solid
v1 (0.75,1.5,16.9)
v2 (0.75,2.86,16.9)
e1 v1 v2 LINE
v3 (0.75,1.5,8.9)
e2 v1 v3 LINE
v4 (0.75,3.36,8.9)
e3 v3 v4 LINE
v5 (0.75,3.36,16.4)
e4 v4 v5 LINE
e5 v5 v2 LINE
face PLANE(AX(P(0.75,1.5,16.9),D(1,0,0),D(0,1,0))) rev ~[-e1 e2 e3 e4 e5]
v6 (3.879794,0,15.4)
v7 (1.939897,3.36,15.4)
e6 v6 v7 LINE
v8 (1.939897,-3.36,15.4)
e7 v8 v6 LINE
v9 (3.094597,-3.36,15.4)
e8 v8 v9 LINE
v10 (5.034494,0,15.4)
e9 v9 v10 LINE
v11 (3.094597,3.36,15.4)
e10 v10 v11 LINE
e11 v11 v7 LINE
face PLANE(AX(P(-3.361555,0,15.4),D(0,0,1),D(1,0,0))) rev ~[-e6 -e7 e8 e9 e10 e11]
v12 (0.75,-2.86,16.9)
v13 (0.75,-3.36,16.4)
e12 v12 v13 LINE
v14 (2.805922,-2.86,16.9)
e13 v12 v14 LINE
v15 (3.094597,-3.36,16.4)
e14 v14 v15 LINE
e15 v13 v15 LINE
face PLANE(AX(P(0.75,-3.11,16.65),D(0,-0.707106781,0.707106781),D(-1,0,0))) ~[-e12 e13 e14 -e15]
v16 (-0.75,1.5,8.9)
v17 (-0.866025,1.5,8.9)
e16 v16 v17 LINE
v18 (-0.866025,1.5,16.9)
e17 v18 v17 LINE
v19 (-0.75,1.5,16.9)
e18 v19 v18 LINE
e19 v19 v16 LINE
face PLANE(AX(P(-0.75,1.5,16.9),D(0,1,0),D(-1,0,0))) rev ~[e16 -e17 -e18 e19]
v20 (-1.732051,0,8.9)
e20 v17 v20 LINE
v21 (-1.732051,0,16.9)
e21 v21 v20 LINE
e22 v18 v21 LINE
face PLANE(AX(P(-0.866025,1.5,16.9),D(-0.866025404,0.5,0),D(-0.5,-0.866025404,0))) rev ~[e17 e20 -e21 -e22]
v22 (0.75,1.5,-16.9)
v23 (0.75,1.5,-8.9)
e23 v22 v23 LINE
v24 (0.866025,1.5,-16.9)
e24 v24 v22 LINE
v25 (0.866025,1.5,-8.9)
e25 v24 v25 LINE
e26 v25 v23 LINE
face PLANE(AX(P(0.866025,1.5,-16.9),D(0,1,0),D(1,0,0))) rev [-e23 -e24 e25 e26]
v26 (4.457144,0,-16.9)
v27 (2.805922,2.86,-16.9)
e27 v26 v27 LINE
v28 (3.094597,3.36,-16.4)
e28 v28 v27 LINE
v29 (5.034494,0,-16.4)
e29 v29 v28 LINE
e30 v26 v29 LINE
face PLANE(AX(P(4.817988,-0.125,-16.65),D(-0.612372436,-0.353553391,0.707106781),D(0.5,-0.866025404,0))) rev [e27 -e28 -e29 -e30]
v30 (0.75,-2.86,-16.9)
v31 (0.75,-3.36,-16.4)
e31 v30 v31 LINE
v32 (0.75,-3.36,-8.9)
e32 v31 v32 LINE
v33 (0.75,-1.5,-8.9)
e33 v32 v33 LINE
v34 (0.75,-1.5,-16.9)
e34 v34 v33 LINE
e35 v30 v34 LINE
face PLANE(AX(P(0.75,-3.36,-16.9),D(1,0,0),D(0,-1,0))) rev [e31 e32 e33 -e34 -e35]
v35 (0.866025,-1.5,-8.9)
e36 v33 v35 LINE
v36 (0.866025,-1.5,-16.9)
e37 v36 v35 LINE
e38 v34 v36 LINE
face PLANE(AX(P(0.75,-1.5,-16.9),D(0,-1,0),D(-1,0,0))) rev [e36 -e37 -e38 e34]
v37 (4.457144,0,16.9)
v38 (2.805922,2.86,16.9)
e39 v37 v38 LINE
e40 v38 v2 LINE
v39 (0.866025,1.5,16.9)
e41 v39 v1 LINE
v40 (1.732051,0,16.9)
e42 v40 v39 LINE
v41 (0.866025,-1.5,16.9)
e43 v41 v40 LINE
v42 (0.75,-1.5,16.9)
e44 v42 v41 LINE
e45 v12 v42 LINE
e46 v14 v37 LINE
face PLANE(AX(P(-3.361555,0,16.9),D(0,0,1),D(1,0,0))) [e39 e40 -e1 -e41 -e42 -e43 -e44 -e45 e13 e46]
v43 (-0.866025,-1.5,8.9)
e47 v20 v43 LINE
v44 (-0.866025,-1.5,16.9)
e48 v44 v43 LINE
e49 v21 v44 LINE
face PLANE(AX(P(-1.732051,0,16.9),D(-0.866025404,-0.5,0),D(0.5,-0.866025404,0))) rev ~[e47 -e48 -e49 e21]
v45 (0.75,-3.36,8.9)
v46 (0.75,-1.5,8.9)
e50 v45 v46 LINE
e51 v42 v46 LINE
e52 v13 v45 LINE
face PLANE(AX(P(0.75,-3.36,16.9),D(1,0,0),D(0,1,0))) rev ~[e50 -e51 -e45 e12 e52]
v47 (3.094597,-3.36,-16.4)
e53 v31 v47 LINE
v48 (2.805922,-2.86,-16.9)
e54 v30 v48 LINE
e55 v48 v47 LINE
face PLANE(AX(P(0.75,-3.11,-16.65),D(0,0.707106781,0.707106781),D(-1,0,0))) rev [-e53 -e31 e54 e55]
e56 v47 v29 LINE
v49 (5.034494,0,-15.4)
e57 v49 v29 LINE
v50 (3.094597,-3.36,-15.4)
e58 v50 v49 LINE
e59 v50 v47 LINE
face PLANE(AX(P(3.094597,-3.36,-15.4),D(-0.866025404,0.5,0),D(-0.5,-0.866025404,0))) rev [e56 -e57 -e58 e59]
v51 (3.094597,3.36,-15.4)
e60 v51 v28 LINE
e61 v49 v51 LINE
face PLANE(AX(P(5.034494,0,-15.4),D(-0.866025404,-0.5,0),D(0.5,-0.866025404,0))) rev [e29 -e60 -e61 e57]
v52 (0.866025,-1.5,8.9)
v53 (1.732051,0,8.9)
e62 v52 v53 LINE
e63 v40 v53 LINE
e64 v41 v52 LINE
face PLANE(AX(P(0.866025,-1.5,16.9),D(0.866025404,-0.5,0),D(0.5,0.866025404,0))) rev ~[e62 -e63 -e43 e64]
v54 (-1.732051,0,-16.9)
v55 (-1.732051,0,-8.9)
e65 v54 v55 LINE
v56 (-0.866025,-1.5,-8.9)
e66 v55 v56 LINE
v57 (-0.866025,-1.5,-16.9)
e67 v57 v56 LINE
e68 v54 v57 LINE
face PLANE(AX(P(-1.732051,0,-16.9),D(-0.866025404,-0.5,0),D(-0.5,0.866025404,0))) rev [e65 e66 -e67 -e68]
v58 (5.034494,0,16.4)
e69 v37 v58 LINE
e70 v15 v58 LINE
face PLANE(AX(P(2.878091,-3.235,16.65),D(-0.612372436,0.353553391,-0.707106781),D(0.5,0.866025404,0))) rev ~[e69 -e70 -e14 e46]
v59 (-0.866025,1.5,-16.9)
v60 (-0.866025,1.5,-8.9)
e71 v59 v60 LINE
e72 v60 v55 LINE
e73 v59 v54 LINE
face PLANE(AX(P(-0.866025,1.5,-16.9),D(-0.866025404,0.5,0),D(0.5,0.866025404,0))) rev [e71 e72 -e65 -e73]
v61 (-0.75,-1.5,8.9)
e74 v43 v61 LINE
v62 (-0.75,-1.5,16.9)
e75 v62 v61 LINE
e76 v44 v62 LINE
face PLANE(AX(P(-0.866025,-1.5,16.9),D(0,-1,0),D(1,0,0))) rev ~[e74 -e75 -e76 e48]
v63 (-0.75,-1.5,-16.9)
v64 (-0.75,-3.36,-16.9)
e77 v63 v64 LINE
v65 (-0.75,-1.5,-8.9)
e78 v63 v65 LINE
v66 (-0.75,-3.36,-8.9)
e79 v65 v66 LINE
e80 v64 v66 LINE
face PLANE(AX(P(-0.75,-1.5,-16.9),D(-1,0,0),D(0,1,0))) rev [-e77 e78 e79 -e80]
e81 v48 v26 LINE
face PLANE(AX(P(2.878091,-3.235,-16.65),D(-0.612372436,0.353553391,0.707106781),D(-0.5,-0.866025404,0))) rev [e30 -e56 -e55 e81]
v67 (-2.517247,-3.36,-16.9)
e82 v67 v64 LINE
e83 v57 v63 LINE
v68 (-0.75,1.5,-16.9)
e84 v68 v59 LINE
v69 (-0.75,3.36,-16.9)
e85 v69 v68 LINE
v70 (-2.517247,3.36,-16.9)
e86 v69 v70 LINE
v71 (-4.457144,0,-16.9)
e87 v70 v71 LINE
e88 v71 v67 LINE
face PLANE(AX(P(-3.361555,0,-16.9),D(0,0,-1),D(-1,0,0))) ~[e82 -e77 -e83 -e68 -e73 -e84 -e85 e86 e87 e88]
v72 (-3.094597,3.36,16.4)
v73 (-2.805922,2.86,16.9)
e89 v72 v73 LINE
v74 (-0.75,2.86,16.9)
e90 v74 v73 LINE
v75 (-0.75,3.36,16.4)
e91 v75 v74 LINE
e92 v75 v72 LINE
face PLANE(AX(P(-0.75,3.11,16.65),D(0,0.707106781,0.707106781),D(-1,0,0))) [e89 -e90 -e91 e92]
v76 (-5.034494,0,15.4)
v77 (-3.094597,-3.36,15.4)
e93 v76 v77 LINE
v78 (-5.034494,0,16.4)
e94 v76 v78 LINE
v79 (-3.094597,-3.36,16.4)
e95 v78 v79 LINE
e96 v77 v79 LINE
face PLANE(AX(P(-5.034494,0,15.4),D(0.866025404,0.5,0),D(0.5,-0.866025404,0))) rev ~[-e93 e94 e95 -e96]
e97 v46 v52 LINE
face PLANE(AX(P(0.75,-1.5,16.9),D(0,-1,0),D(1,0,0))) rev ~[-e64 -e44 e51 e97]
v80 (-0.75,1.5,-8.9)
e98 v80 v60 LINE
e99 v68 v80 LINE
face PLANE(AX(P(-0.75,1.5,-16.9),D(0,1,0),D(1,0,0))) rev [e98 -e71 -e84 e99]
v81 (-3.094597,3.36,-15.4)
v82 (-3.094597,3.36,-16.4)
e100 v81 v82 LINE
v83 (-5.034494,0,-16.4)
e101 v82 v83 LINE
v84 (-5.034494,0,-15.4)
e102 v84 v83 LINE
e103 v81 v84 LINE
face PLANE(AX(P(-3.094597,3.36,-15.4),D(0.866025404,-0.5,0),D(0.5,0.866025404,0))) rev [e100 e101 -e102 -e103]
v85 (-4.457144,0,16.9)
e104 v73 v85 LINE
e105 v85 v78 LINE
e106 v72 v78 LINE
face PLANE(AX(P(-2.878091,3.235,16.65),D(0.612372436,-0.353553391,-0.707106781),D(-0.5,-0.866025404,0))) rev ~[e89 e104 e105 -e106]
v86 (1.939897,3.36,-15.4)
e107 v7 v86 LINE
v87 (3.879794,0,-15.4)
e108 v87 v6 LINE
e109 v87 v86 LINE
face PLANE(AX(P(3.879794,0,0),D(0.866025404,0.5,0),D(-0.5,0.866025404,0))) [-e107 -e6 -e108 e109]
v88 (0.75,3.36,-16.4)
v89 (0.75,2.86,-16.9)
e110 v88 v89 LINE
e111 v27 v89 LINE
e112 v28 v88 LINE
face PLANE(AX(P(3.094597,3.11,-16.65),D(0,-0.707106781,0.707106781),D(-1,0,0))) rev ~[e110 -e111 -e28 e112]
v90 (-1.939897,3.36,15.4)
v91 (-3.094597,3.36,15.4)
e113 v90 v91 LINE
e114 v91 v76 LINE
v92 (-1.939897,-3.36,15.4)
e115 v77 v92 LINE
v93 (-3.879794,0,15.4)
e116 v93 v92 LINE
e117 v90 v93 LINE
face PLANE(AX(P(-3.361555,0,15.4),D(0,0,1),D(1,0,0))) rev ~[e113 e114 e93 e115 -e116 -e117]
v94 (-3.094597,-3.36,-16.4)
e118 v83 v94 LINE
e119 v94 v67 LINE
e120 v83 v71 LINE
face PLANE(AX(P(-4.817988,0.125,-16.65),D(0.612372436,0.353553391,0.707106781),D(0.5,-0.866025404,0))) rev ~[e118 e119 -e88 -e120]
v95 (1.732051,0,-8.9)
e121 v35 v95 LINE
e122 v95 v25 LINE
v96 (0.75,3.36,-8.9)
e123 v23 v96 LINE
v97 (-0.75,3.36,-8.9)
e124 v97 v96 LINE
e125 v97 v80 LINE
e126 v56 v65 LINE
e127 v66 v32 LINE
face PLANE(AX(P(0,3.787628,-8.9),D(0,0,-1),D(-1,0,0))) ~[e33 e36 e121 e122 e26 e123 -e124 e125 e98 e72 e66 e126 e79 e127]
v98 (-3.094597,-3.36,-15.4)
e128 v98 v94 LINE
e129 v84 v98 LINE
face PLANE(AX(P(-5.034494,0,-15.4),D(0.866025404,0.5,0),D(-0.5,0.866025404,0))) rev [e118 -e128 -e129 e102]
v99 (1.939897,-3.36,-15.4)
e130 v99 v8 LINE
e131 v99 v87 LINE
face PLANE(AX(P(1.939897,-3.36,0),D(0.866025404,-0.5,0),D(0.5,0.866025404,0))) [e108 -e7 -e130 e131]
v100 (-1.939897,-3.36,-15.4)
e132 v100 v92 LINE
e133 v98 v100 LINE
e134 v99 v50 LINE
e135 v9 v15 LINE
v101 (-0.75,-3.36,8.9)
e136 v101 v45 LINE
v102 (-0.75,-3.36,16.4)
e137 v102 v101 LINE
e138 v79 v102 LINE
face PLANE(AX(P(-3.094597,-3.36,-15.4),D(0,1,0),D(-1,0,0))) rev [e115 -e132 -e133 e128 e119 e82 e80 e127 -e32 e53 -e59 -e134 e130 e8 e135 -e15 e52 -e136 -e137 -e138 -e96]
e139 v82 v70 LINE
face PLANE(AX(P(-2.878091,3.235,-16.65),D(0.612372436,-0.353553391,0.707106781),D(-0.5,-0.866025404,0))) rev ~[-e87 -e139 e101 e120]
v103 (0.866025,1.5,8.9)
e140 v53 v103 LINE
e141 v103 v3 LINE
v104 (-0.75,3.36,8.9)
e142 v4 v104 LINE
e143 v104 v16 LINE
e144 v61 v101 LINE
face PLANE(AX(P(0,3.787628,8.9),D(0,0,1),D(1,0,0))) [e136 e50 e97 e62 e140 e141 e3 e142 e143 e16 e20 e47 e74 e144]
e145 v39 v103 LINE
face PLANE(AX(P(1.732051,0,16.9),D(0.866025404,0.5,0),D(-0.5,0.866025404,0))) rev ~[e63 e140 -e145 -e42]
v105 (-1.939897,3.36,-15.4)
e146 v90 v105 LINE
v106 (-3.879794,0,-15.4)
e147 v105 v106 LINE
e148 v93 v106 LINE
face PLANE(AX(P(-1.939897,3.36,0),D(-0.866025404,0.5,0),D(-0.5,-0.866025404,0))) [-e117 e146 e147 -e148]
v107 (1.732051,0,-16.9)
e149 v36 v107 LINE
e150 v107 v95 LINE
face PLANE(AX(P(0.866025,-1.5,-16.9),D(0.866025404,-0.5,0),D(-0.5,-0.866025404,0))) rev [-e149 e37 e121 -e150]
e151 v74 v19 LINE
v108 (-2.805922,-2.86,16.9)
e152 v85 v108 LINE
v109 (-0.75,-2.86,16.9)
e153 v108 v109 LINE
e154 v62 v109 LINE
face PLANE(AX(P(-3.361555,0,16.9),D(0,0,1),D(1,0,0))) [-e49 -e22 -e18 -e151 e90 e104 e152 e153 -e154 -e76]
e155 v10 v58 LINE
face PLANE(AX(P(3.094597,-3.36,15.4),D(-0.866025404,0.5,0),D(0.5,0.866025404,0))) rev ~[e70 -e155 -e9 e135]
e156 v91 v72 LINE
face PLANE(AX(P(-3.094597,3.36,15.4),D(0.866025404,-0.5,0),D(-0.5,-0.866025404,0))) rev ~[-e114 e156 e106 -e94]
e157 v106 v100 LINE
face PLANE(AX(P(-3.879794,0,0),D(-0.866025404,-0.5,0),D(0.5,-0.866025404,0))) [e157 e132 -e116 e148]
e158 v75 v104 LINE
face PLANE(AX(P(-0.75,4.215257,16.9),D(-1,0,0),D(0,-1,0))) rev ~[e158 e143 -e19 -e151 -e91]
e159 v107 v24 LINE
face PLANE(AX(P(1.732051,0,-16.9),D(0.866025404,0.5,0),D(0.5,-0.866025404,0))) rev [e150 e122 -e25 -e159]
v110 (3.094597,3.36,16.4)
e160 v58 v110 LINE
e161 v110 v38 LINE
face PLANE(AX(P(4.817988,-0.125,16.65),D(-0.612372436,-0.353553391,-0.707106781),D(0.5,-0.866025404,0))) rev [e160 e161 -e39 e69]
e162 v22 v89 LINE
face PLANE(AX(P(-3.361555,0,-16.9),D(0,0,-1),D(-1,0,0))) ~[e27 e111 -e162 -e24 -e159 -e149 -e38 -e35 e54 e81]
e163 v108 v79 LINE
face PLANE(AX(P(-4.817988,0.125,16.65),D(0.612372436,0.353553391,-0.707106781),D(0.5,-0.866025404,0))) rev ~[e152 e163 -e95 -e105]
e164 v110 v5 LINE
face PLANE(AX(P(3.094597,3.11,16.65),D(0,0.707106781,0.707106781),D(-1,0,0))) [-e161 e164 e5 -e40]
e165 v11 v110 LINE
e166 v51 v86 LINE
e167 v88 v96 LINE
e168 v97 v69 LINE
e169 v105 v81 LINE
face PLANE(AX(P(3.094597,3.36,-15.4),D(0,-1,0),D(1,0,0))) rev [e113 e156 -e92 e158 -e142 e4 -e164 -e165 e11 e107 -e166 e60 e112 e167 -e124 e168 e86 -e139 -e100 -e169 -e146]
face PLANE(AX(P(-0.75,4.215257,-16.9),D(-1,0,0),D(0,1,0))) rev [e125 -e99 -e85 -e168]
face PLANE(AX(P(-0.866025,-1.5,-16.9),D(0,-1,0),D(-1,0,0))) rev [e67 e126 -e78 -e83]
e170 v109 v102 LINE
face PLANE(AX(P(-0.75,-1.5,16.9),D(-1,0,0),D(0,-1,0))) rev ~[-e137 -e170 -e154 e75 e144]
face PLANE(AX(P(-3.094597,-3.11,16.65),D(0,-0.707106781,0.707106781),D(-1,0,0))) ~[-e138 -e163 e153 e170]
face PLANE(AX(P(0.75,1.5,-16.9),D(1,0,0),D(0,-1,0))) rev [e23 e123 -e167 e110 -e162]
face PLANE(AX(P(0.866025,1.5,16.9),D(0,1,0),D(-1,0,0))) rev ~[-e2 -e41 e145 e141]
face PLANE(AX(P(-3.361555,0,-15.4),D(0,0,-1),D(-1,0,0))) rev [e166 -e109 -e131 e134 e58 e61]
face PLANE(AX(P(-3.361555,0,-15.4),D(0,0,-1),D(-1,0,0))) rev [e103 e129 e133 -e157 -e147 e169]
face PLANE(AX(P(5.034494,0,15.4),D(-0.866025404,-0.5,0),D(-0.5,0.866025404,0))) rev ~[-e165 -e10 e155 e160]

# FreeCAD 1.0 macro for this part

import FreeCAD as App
import Part
import Sketcher
from FreeCAD import Vector
Q = App.Units.Quantity


def edges_at(feature, points):
    """Names of the edges that pass closest to the given points."""
    edges = feature.Shape.Edges
    near = lambda p: min(range(len(edges)), key=lambda i: edges[i].distToShape(Part.Vertex(*p))[0])
    return sorted({f"Edge{near(p) + 1}" for p in points})

doc = App.newDocument("Part")
body = doc.addObject("PartDesign::Body", "Body")

sketch1 = body.newObject("Sketcher::SketchObject", "Sketch")
sketch1.AttachmentSupport = (doc.getObject("XY_Plane"), [""])
sketch1.MapMode = "FlatFace"
sketch1.addGeometry([
    Part.LineSegment(Vector(-3.9, 0, 0), Vector(-1.9, -3.4, 0)),
    Part.LineSegment(Vector(-1.9, -3.4, 0), Vector(1.9, -3.4, 0)),
    Part.LineSegment(Vector(1.9, -3.4, 0), Vector(3.9, 0, 0)),
    Part.LineSegment(Vector(3.9, 0, 0), Vector(1.9, 3.4, 0)),
    Part.LineSegment(Vector(1.9, 3.4, 0), Vector(-1.9, 3.4, 0)),
    Part.LineSegment(Vector(-1.9, 3.4, 0), Vector(-3.9, 0, 0)),
], False)
sketch1.addConstraint([
    Sketcher.Constraint("Coincident", 0, 2, 1, 1),
    Sketcher.Constraint("Coincident", 1, 2, 2, 1),
    Sketcher.Constraint("Coincident", 2, 2, 3, 1),
    Sketcher.Constraint("Coincident", 3, 2, 4, 1),
    Sketcher.Constraint("Coincident", 4, 2, 5, 1),
    Sketcher.Constraint("Coincident", 5, 2, 0, 1),
    Sketcher.Constraint("Horizontal", 1),
    Sketcher.Constraint("Horizontal", 4),
    Sketcher.Constraint("Symmetric", 0, 2, 3, 2, -1, 1),
    Sketcher.Constraint("Symmetric", 2, 2, 5, 2, -1, 1),
    Sketcher.Constraint("PointOnObject", 2, 2, -1),
    Sketcher.Constraint("Parallel", 2, 5),
    Sketcher.Constraint("Vertical", 1, 2, 3, 2),
    Sketcher.Constraint("Angle", 0, Q("-60 deg")),
    Sketcher.Constraint("DistanceY", 0, 2, -1, 1, Q("3.36 mm")),
    Sketcher.Constraint("DistanceX", 1, 1, 1, 2, Q("3.879794 mm")),
])
pad1 = body.newObject("PartDesign::Pad", "Pad")
pad1.Profile = sketch1
pad1.Length = 30.8
pad1.Midplane = True

sketch2 = body.newObject("Sketcher::SketchObject", "Sketch001")
sketch2.AttachmentSupport = (doc.getObject("XY_Plane"), [""])
sketch2.MapMode = "FlatFace"
sketch2.AttachmentOffset = App.Placement(Vector(0, 0, 15.4), App.Rotation())
sketch2.addGeometry([
    Part.LineSegment(Vector(-3.1, 3.4, 0), Vector(-5, 0, 0)),
    Part.LineSegment(Vector(-5, 0, 0), Vector(-3.1, -3.4, 0)),
    Part.LineSegment(Vector(-3.1, -3.4, 0), Vector(3.1, -3.4, 0)),
    Part.LineSegment(Vector(3.1, -3.4, 0), Vector(5, 0, 0)),
    Part.LineSegment(Vector(5, 0, 0), Vector(3.1, 3.4, 0)),
    Part.LineSegment(Vector(3.1, 3.4, 0), Vector(-3.1, 3.4, 0)),
], False)
sketch2.addConstraint([
    Sketcher.Constraint("Coincident", 0, 2, 1, 1),
    Sketcher.Constraint("Coincident", 1, 2, 2, 1),
    Sketcher.Constraint("Coincident", 2, 2, 3, 1),
    Sketcher.Constraint("Coincident", 3, 2, 4, 1),
    Sketcher.Constraint("Coincident", 4, 2, 5, 1),
    Sketcher.Constraint("Coincident", 5, 2, 0, 1),
    Sketcher.Constraint("Horizontal", 2),
    Sketcher.Constraint("Horizontal", 5),
    Sketcher.Constraint("Symmetric", 0, 2, 3, 2, -1, 1),
    Sketcher.Constraint("Symmetric", 1, 2, 4, 2, -1, 1),
    Sketcher.Constraint("PointOnObject", 0, 2, -1),
    Sketcher.Constraint("Parallel", 0, 3),
    Sketcher.Constraint("Vertical", 2, 2, 4, 2),
    Sketcher.Constraint("Angle", 0, Q("-120 deg")),
    Sketcher.Constraint("DistanceY", 1, 2, -1, 1, Q("3.36 mm")),
    Sketcher.Constraint("DistanceX", 2, 1, 2, 2, Q("6.189195 mm")),
])
pad2 = body.newObject("PartDesign::Pad", "Pad001")
pad2.Profile = sketch2
pad2.Length = 1.5

sketch3 = body.newObject("Sketcher::SketchObject", "Sketch002")
sketch3.AttachmentSupport = (doc.getObject("XY_Plane"), [""])
sketch3.MapMode = "FlatFace"
sketch3.AttachmentOffset = App.Placement(Vector(0, 0, 16.9), App.Rotation())
sketch3.addGeometry([
    Part.LineSegment(Vector(-0.75, 4.22, 0), Vector(-0.75, 1.5, 0)),
    Part.LineSegment(Vector(-0.75, 1.5, 0), Vector(-0.87, 1.5, 0)),
    Part.LineSegment(Vector(-0.87, 1.5, 0), Vector(-1.73, 0, 0)),
    Part.LineSegment(Vector(-1.73, 0, 0), Vector(-0.87, -1.5, 0)),
    Part.LineSegment(Vector(-0.87, -1.5, 0), Vector(-0.75, -1.5, 0)),
    Part.LineSegment(Vector(-0.75, -1.5, 0), Vector(-0.75, -3.36, 0)),
    Part.LineSegment(Vector(-0.75, -3.36, 0), Vector(0.75, -3.36, 0)),
    Part.LineSegment(Vector(0.75, -3.36, 0), Vector(0.75, -1.5, 0)),
    Part.LineSegment(Vector(0.75, -1.5, 0), Vector(0.87, -1.5, 0)),
    Part.LineSegment(Vector(0.87, -1.5, 0), Vector(1.73, 0, 0)),
    Part.LineSegment(Vector(1.73, 0, 0), Vector(0.87, 1.5, 0)),
    Part.LineSegment(Vector(0.87, 1.5, 0), Vector(0.75, 1.5, 0)),
    Part.LineSegment(Vector(0.75, 1.5, 0), Vector(0.75, 4.22, 0)),
    Part.LineSegment(Vector(0.75, 4.22, 0), Vector(-0.75, 4.22, 0)),
], False)
sketch3.addConstraint([
    Sketcher.Constraint("Coincident", 0, 2, 1, 1),
    Sketcher.Constraint("Coincident", 1, 2, 2, 1),
    Sketcher.Constraint("Coincident", 2, 2, 3, 1),
    Sketcher.Constraint("Coincident", 3, 2, 4, 1),
    Sketcher.Constraint("Coincident", 4, 2, 5, 1),
    Sketcher.Constraint("Coincident", 5, 2, 6, 1),
    Sketcher.Constraint("Coincident", 6, 2, 7, 1),
    Sketcher.Constraint("Coincident", 7, 2, 8, 1),
    Sketcher.Constraint("Coincident", 8, 2, 9, 1),
    Sketcher.Constraint("Coincident", 9, 2, 10, 1),
    Sketcher.Constraint("Coincident", 10, 2, 11, 1),
    Sketcher.Constraint("Coincident", 11, 2, 12, 1),
    Sketcher.Constraint("Coincident", 12, 2, 13, 1),
    Sketcher.Constraint("Coincident", 13, 2, 0, 1),
    Sketcher.Constraint("Vertical", 0),
    Sketcher.Constraint("Horizontal", 1),
    Sketcher.Constraint("Horizontal", 4),
    Sketcher.Constraint("Vertical", 5),
    Sketcher.Constraint("Horizontal", 6),
    Sketcher.Constraint("Vertical", 7),
    Sketcher.Constraint("Horizontal", 8),
    Sketcher.Constraint("Horizontal", 11),
    Sketcher.Constraint("Vertical", 12),
    Sketcher.Constraint("Horizontal", 13),
    Sketcher.Constraint("Symmetric", 0, 2, 7, 2, -1, 1),
    Sketcher.Constraint("Symmetric", 2, 2, 9, 2, -1, 1),
    Sketcher.Constraint("Symmetric", 3, 2, 10, 2, -1, 1),
    Sketcher.Constraint("Symmetric", 4, 2, 7, 2, -2),
    Sketcher.Constraint("PointOnObject", 2, 2, -1),
    Sketcher.Constraint("Parallel", 2, 9),
    Sketcher.Constraint("Vertical", 1, 2, 3, 2),
    Sketcher.Constraint("Vertical", 7, 2, 11, 2),
    Sketcher.Constraint("Angle", 2, Q("-120 deg")),
    Sketcher.Constraint("DistanceX", 6, 1, 6, 2, Q("1.5 mm")),
    Sketcher.Constraint("DistanceY", 3, 2, 1, 2, Q("3 mm")),
    Sketcher.Constraint("DistanceY", 5, 2, 5, 1, Q("1.86 mm")),
    Sketcher.Constraint("DistanceX", 1, 2, 1, 1, Q("0.116025 mm")),
    Sketcher.Constraint("DistanceY", 0, 2, 0, 1, Q("2.715257 mm")),
])
pocket1 = body.newObject("PartDesign::Pocket", "Pocket")
pocket1.Profile = sketch3
pocket1.Length = 8
doc.recompute()

mirrored = body.newObject("PartDesign::Mirrored", "Mirrored")
mirrored.Originals = [pad2, pocket1]
mirrored.MirrorPlane = (doc.getObject("XY_Plane"), [""])
body.Tip = mirrored
doc.recompute()

chamfer = body.newObject("PartDesign::Chamfer", "Chamfer")
chamfer.Base = (mirrored, edges_at(mirrored, [
    (1.922, -3.36, -16.9),
    (1.922, 3.36, -16.9),
    (-1.922, 3.36, 16.9),
    (-1.922, -3.36, 16.9),
    (4.065, -1.68, 16.9),
    (4.065, 1.68, 16.9),
    (-4.065, 1.68, 16.9),
    (-4.065, -1.68, 16.9),
    (1.922, -3.36, 16.9),
    (1.922, 3.36, 16.9),
    (-4.065, -1.68, -16.9),
    (-4.065, 1.68, -16.9),
    (4.065, 1.68, -16.9),
    (4.065, -1.68, -16.9),
]))
chamfer.Size = 0.5

doc.recompute()
